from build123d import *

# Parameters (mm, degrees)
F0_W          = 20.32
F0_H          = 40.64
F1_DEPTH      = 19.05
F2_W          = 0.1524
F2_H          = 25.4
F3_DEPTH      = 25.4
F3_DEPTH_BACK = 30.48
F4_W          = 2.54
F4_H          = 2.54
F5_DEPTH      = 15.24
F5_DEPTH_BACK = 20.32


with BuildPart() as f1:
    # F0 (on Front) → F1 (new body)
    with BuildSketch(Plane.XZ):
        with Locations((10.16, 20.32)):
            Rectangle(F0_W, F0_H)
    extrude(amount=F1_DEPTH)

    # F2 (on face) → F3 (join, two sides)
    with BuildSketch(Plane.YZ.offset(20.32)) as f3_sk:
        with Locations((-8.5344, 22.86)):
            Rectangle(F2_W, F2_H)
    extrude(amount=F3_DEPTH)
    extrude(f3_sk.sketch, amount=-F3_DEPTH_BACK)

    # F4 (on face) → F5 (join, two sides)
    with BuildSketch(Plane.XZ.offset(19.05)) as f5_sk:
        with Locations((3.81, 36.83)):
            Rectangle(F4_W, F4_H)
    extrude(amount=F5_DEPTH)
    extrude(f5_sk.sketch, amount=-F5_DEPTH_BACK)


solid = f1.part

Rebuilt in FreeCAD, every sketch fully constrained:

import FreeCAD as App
import Part
import Sketcher
from FreeCAD import Vector
Q = App.Units.Quantity


def add_polygon(sketch, points):
    """Adds a closed chain of lines whose ends are joined by coincident constraints."""
    first, n = sketch.GeometryCount, len(points)
    for a, b in zip(points, points[1:] + points[:1]):
        sketch.addGeometry(Part.LineSegment(App.Vector(*a, 0), App.Vector(*b, 0)), False)
    for i in range(n):
        sketch.addConstraint(Sketcher.Constraint("Coincident", first + i, 2, first + (i + 1) % n, 1))

doc = App.newDocument("Part")
body = doc.addObject("PartDesign::Body", "Body")

sketch1 = body.newObject("Sketcher::SketchObject", "Sketch")
sketch1.AttachmentSupport = (doc.getObject("XZ_Plane"), [""])
sketch1.MapMode = "FlatFace"
add_polygon(sketch1, [(0, 41), (0, 0), (20, 0), (20, 41)])
sketch1.addConstraint([
    Sketcher.Constraint("Vertical", 0),
    Sketcher.Constraint("Horizontal", 1),
    Sketcher.Constraint("Vertical", 2),
    Sketcher.Constraint("Horizontal", 3),
    Sketcher.Constraint("Coincident", 0, 2, -1, 1),
    Sketcher.Constraint("DistanceX", 1, 1, 1, 2, Q("0.8 in")),
    Sketcher.Constraint("DistanceY", 0, 2, 0, 1, Q("1.6 in")),
])
pad1 = body.newObject("PartDesign::Pad", "Pad")
pad1.Profile = sketch1
pad1.Length = Q("0.75 in")

sketch2 = body.newObject("Sketcher::SketchObject", "Sketch001")
sketch2.AttachmentSupport = (doc.getObject("YZ_Plane"), [""])
sketch2.MapMode = "FlatFace"
sketch2.AttachmentOffset = App.Placement(Vector(0, 0, 0.8 * 25.4), App.Rotation())
add_polygon(sketch2, [(-8.61, 35.56), (-8.61, 10.16), (-8.46, 10.16), (-8.46, 35.56)])
sketch2.addConstraint([
    Sketcher.Constraint("Vertical", 0),
    Sketcher.Constraint("Horizontal", 1),
    Sketcher.Constraint("Vertical", 2),
    Sketcher.Constraint("Horizontal", 3),
    Sketcher.Constraint("DistanceY", 0, 2, 0, 1, Q("1 in")),
    Sketcher.Constraint("DistanceY", -1, 1, 0, 2, Q("0.4 in")),
    Sketcher.Constraint("DistanceX", 1, 1, 1, 2, Q("0.006 in")),
    Sketcher.Constraint("DistanceX", 0, 2, -1, 1, Q("0.339 in")),
])
pad2 = body.newObject("PartDesign::Pad", "Pad001")
pad2.Profile = sketch2
pad2.Type = "TwoLengths"
pad2.Length = Q("1 in")
pad2.Length2 = Q("1.2 in")

sketch3 = body.newObject("Sketcher::SketchObject", "Sketch002")
sketch3.AttachmentSupport = (doc.getObject("XZ_Plane"), [""])
sketch3.MapMode = "FlatFace"
sketch3.AttachmentOffset = App.Placement(Vector(0, 0, 0.75 * 25.4), App.Rotation())
add_polygon(sketch3, [(2.5, 38.1), (2.5, 35.6), (5.1, 35.6), (5.1, 38.1)])
sketch3.addConstraint([
    Sketcher.Constraint("Vertical", 0),
    Sketcher.Constraint("Horizontal", 1),
    Sketcher.Constraint("Vertical", 2),
    Sketcher.Constraint("Horizontal", 3),
    Sketcher.Constraint("Equal", 3, 0),
    Sketcher.Constraint("DistanceX", 1, 1, 1, 2, Q("0.1 in")),
    Sketcher.Constraint("DistanceX", -1, 1, 0, 2, Q("0.1 in")),
    Sketcher.Constraint("DistanceY", -1, 1, 0, 2, Q("1.4 in")),
])
pad3 = body.newObject("PartDesign::Pad", "Pad002")
pad3.Profile = sketch3
pad3.Type = "TwoLengths"
pad3.Length = Q("0.6 in")
pad3.Length2 = Q("0.8 in")

doc.recompute()
